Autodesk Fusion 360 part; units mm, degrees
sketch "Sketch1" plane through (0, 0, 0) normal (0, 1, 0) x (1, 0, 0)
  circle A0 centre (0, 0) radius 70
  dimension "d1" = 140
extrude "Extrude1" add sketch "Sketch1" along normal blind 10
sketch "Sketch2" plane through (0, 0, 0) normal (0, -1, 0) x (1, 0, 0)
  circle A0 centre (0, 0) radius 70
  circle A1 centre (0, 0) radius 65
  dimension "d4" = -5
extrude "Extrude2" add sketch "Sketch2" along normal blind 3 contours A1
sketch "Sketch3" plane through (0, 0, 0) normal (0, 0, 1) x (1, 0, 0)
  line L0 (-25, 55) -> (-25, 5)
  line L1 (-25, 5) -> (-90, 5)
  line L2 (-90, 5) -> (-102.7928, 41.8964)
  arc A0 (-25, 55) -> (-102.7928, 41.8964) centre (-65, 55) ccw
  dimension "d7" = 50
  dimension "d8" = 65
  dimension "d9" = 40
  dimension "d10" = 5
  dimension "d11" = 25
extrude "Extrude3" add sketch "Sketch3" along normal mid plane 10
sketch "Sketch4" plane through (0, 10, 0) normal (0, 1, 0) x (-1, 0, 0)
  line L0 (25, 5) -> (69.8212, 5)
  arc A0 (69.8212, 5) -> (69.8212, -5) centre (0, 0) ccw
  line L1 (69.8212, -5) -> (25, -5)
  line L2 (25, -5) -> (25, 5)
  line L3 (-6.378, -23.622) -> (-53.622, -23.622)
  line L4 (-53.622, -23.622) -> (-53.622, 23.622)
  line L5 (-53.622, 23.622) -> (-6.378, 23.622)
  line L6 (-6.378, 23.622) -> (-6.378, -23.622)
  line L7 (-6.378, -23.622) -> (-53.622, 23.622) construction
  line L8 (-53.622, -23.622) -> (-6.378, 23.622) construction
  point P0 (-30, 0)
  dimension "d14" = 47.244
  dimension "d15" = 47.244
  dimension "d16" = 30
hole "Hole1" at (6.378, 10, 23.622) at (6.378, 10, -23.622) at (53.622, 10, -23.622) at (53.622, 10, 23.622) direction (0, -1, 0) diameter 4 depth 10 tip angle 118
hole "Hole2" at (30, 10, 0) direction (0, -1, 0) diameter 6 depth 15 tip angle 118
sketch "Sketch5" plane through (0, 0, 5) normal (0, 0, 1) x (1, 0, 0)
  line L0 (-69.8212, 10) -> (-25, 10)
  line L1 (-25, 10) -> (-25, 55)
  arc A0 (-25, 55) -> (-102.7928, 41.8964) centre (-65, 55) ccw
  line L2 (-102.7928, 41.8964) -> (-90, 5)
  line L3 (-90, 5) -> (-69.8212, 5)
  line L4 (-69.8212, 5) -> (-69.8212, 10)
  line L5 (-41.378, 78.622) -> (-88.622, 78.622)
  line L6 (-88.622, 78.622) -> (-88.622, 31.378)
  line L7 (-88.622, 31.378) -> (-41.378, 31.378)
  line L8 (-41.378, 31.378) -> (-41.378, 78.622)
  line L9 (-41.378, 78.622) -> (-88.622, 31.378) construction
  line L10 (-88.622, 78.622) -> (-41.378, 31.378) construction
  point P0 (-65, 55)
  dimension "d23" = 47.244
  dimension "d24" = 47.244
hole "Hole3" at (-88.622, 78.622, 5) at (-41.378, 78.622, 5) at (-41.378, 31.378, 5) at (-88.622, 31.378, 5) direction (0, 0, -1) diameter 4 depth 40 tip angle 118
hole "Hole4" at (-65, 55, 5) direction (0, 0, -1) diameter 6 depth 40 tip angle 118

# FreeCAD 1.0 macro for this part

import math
import FreeCAD as App
import Part
import Sketcher

doc = App.newDocument("Part")
body = doc.addObject("PartDesign::Body", "Body")

# Sketch on XZ plane
sketch1 = body.newObject("Sketcher::SketchObject", "Sketch")
sketch1.AttachmentSupport = (doc.getObject("XZ_Plane"), [""])
sketch1.MapMode = "FlatFace"
sketch1.addGeometry(Part.Circle(App.Vector(0, 0, 0), App.Vector(0, 0, 1), 70), False)
sketch1.addConstraint([
    Sketcher.Constraint("Coincident", 0, 3, -1, 1),
    Sketcher.Constraint("Diameter", 0, 140.0),
])
pad1 = body.newObject("PartDesign::Pad", "Pad")
pad1.Profile = sketch1
pad1.Length = 10
pad1.Reversed = True

# Sketch on XZ plane
sketch2 = body.newObject("Sketcher::SketchObject", "Sketch001")
sketch2.AttachmentSupport = (doc.getObject("XZ_Plane"), [""])
sketch2.MapMode = "FlatFace"
sketch2.addGeometry(Part.Circle(App.Vector(0, 0, 0), App.Vector(0, 0, 1), 65), False)
sketch2.addConstraint([
    Sketcher.Constraint("Coincident", 0, 3, -1, 1),
    Sketcher.Constraint("Diameter", 0, 130.0),
])
pad2 = body.newObject("PartDesign::Pad", "Pad001")
pad2.Profile = sketch2
pad2.Length = 3

# Sketch on XY plane
sketch3 = body.newObject("Sketcher::SketchObject", "Sketch002")
sketch3.AttachmentSupport = (doc.getObject("XY_Plane"), [""])
sketch3.MapMode = "FlatFace"
sketch3.addGeometry([
    Part.LineSegment(App.Vector(-25, 5, 0), App.Vector(-25, 55, 0)),
    Part.ArcOfCircle(Part.Circle(App.Vector(-65, 55, 0), App.Vector(0, 0, 1), 40), math.radians(0), math.radians(199.122563)),
    Part.LineSegment(App.Vector(-102.7928, 41.8964, 0), App.Vector(-90, 5, 0)),
    Part.LineSegment(App.Vector(-90, 5, 0), App.Vector(-25, 5, 0)),
], False)
sketch3.addConstraint([
    Sketcher.Constraint("Tangent", 0, 2, 1, 1),
    Sketcher.Constraint("Tangent", 1, 2, 2, 1),
    Sketcher.Constraint("Coincident", 2, 2, 3, 1),
    Sketcher.Constraint("Coincident", 3, 2, 0, 1),
    Sketcher.Constraint("Vertical", 0),
    Sketcher.Constraint("Horizontal", 3),
    Sketcher.Constraint("Radius", 1, 40.0),
    Sketcher.Constraint("DistanceX", 3, 1, 3, 2, 65.0),
    Sketcher.Constraint("DistanceY", 0, 1, 0, 2, 50.0),
    Sketcher.Constraint("DistanceX", 1, 3, -1, 1, 65.0),
    Sketcher.Constraint("DistanceY", -1, 1, 2, 2, 5.0),
])
pad3 = body.newObject("PartDesign::Pad", "Pad002")
pad3.Profile = sketch3
pad3.Length = 10
pad3.Midplane = True

# Sketch on XZ plane
sketch4 = body.newObject("Sketcher::SketchObject", "Sketch003")
sketch4.AttachmentSupport = (doc.getObject("XZ_Plane"), [""])
sketch4.MapMode = "FlatFace"
sketch4.AttachmentOffset = App.Placement(App.Vector(0, 0, -10), App.Rotation())
sketch4.addGeometry([
    Part.Circle(App.Vector(6.378, 23.622, 0), App.Vector(0, 0, 1), 2),
    Part.Circle(App.Vector(6.378, -23.622, 0), App.Vector(0, 0, 1), 2),
    Part.Circle(App.Vector(53.622, -23.622, 0), App.Vector(0, 0, 1), 2),
    Part.Circle(App.Vector(53.622, 23.622, 0), App.Vector(0, 0, 1), 2),
], False)
sketch4.addConstraint([
    Sketcher.Constraint("Equal", 0, 1),
    Sketcher.Constraint("Equal", 1, 2),
    Sketcher.Constraint("Equal", 2, 3),
    Sketcher.Constraint("Symmetric", 0, 3, 1, 3, -1),
    Sketcher.Constraint("Symmetric", 2, 3, 3, 3, -1),
    Sketcher.Constraint("Horizontal", 1, 3, 2, 3),
    Sketcher.Constraint("Diameter", 0, 4.0),
    Sketcher.Constraint("DistanceX", -1, 1, 0, 3, 6.378),
    Sketcher.Constraint("DistanceY", -1, 1, 0, 3, 23.622),
    Sketcher.Constraint("DistanceX", -1, 1, 2, 3, 53.622),
])
doc.recompute()
hole = body.newObject("PartDesign::Hole", "Hole")
hole.Profile = sketch4
hole.ThreadType = "None"
hole.Diameter = 4
hole.DepthType = "Dimension"
hole.Depth = 10
hole.DrillPoint = "Angled"
hole.DrillPointAngle = 118
hole.Reversed = True

# Sketch on XZ plane
sketch5 = body.newObject("Sketcher::SketchObject", "Sketch004")
sketch5.AttachmentSupport = (doc.getObject("XZ_Plane"), [""])
sketch5.MapMode = "FlatFace"
sketch5.AttachmentOffset = App.Placement(App.Vector(0, 0, -10), App.Rotation())
sketch5.addGeometry(Part.Circle(App.Vector(30, 0, 0), App.Vector(0, 0, 1), 3), False)
sketch5.addConstraint([
    Sketcher.Constraint("PointOnObject", 0, 3, -1),
    Sketcher.Constraint("Diameter", 0, 6.0),
    Sketcher.Constraint("DistanceX", -1, 1, 0, 3, 30.0),
])
doc.recompute()
hole2 = body.newObject("PartDesign::Hole", "Hole001")
hole2.Profile = sketch5
hole2.ThreadType = "None"
hole2.Diameter = 6
hole2.DepthType = "Dimension"
hole2.Depth = 15
hole2.DrillPoint = "Angled"
hole2.DrillPointAngle = 118
hole2.Reversed = True

# Sketch on XY plane
sketch6 = body.newObject("Sketcher::SketchObject", "Sketch005")
sketch6.AttachmentSupport = (doc.getObject("XY_Plane"), [""])
sketch6.MapMode = "FlatFace"
sketch6.AttachmentOffset = App.Placement(App.Vector(0, 0, 5), App.Rotation())
sketch6.addGeometry([
    Part.Circle(App.Vector(-88.622, 78.622, 0), App.Vector(0, 0, 1), 2),
    Part.Circle(App.Vector(-41.378, 78.622, 0), App.Vector(0, 0, 1), 2),
    Part.Circle(App.Vector(-41.378, 31.378, 0), App.Vector(0, 0, 1), 2),
    Part.Circle(App.Vector(-88.622, 31.378, 0), App.Vector(0, 0, 1), 2),
], False)
sketch6.addConstraint([
    Sketcher.Constraint("Equal", 0, 1),
    Sketcher.Constraint("Equal", 1, 2),
    Sketcher.Constraint("Equal", 2, 3),
    Sketcher.Constraint("Horizontal", 0, 3, 1, 3),
    Sketcher.Constraint("Horizontal", 2, 3, 3, 3),
    Sketcher.Constraint("Vertical", 1, 3, 2, 3),
    Sketcher.Constraint("Vertical", 0, 3, 3, 3),
    Sketcher.Constraint("Diameter", 0, 4.0),
    Sketcher.Constraint("DistanceX", 0, 3, -1, 1, 88.622),
    Sketcher.Constraint("DistanceY", -1, 1, 0, 3, 78.622),
    Sketcher.Constraint("DistanceX", 1, 3, -1, 1, 41.378),
    Sketcher.Constraint("DistanceY", -1, 1, 2, 3, 31.378),
])
doc.recompute()
hole3 = body.newObject("PartDesign::Hole", "Hole002")
hole3.Profile = sketch6
hole3.ThreadType = "None"
hole3.Diameter = 4
hole3.DepthType = "Dimension"
hole3.Depth = 40
hole3.DrillPoint = "Angled"
hole3.DrillPointAngle = 118

# Sketch on XY plane
sketch7 = body.newObject("Sketcher::SketchObject", "Sketch006")
sketch7.AttachmentSupport = (doc.getObject("XY_Plane"), [""])
sketch7.MapMode = "FlatFace"
sketch7.AttachmentOffset = App.Placement(App.Vector(0, 0, 5), App.Rotation())
sketch7.addGeometry(Part.Circle(App.Vector(-65, 55, 0), App.Vector(0, 0, 1), 3), False)
sketch7.addConstraint([
    Sketcher.Constraint("Diameter", 0, 6.0),
    Sketcher.Constraint("DistanceX", 0, 3, -1, 1, 65.0),
    Sketcher.Constraint("DistanceY", -1, 1, 0, 3, 55.0),
])
doc.recompute()
hole4 = body.newObject("PartDesign::Hole", "Hole003")
hole4.Profile = sketch7
hole4.ThreadType = "None"
hole4.Diameter = 6
hole4.DepthType = "Dimension"
hole4.Depth = 40
hole4.DrillPoint = "Angled"
hole4.DrillPointAngle = 118

doc.recompute()
